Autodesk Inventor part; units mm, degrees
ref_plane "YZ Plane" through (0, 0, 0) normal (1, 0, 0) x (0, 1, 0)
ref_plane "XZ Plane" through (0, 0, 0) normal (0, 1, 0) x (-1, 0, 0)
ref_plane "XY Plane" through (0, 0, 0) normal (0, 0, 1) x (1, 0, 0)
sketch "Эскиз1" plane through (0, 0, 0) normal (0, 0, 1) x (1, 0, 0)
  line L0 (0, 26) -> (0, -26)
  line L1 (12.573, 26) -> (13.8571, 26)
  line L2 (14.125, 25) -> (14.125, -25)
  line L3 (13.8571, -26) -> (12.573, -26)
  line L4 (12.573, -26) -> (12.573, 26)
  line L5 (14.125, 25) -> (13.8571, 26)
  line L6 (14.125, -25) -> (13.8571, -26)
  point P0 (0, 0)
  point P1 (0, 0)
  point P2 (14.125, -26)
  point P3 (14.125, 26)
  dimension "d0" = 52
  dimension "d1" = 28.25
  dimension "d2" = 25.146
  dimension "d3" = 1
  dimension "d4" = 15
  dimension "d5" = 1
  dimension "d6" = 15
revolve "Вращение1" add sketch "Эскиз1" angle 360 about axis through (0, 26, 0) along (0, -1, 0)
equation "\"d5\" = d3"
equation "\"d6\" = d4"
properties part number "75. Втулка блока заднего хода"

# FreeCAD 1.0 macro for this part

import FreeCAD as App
import Part
import Sketcher
from FreeCAD import Vector
Q = App.Units.Quantity


def add_polygon(sketch, points):
    """Adds a closed chain of lines whose ends are joined by coincident constraints."""
    first, n = sketch.GeometryCount, len(points)
    for a, b in zip(points, points[1:] + points[:1]):
        sketch.addGeometry(Part.LineSegment(App.Vector(*a, 0), App.Vector(*b, 0)), False)
    for i in range(n):
        sketch.addConstraint(Sketcher.Constraint("Coincident", first + i, 2, first + (i + 1) % n, 1))

doc = App.newDocument("Part")
params = doc.addObject("Spreadsheet::Sheet", "Params")
for row, (alias, value) in enumerate([
    ("sketch1_height", "52 mm"),
    ("revolution_angle", "360 deg"),
], start=1):
    params.set(f"A{row}", alias)
    params.set(f"B{row}", "=" + value)
    params.setAlias(f"B{row}", alias)

body = doc.addObject("PartDesign::Body", "Body")

sketch1 = doc.addObject("Sketcher::SketchObject", "Sketch")
body.addObject(sketch1)
sketch1.AttachmentSupport = (doc.XY_Plane, [""])
sketch1.MapMode = "FlatFace"
add_polygon(sketch1, [(13.9, 26), (12.6, 26), (12.6, -26), (13.9, -26), (14.1, -25), (14.1, 25)])
sketch1.addConstraint(Sketcher.Constraint("Horizontal", 0))
sketch1.addConstraint(Sketcher.Constraint("Vertical", 1))
sketch1.addConstraint(Sketcher.Constraint("Horizontal", 2))
sketch1.addConstraint(Sketcher.Constraint("Vertical", 4))
sketch1.addConstraint(Sketcher.Constraint("Symmetric", 2, 2, 5, 2, -1))
sketch1.addConstraint(Sketcher.Constraint("Equal", 3, 5))
sketch1.addConstraint(Sketcher.Constraint("DistanceY", 1, 2, 1, 1, Q("52 mm")))
sketch1.addConstraint(Sketcher.Constraint("DistanceY", 2, 2, 3, 2, Q("1 mm")))
sketch1.addConstraint(Sketcher.Constraint("DistanceX", 0, 2, 0, 1, Q("1.284 mm")))
sketch1.addConstraint(Sketcher.Constraint("DistanceX", -1, 1, 0, 2, Q("12.573 mm")))
sketch1.addConstraint(Sketcher.Constraint("DistanceX", -1, 1, 3, 2, Q("14.125 mm")))
sketch1.setExpression("Constraints[12]", "Params.sketch1_height")
revolution = doc.addObject("PartDesign::Revolution", "Revolution")
body.addObject(revolution)
revolution.Profile = sketch1
revolution.ReferenceAxis = (sketch1, ["V_Axis"])
revolution.setExpression("Angle", "Params.revolution_angle")

doc.recompute()
